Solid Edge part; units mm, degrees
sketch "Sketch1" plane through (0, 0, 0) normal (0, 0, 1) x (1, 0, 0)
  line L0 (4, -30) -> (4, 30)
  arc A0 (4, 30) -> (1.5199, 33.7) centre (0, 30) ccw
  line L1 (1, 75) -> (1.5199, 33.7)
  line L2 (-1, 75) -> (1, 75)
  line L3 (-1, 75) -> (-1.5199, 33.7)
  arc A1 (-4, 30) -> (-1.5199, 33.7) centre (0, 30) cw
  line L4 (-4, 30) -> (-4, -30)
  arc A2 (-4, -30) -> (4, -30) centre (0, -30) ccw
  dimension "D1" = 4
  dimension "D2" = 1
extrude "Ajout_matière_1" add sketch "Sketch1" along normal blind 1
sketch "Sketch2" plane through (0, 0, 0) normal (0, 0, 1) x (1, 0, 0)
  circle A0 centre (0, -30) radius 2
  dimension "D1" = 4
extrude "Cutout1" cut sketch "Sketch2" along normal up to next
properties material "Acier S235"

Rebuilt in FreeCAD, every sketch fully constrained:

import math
import FreeCAD as App
import Part
import Sketcher

doc = App.newDocument("Part")
params = doc.addObject("Spreadsheet::Sheet", "Params")
for row, (alias, value) in enumerate([
    ("sketch1_radius", "4 mm"),
    ("sketch1_height", "60 mm"),
    ("pad1_length", "1 mm"),
    ("sketch2_diameter", "4 mm"),
], start=1):
    params.set(f"A{row}", alias)
    params.set(f"B{row}", "=" + value)
    params.setAlias(f"B{row}", alias)

body = doc.addObject("PartDesign::Body", "Body")

# Sketch on XY plane
sketch1 = body.newObject("Sketcher::SketchObject", "Sketch")
sketch1.AttachmentSupport = (doc.getObject("XY_Plane"), [""])
sketch1.MapMode = "FlatFace"
sketch1.addGeometry([
    Part.ArcOfCircle(Part.Circle(App.Vector(0, -30, 0), App.Vector(0, 0, 1), 4), math.radians(180), math.radians(360)),  # 0
    Part.LineSegment(App.Vector(4, -30, 0), App.Vector(4, 30, 0)),  # 1
    Part.ArcOfCircle(Part.Circle(App.Vector(0, 30, 0), App.Vector(0, 0, 1), 4), math.radians(0), math.radians(68)),  # 2
    Part.LineSegment(App.Vector(1.5, 33.7, 0), App.Vector(1, 75, 0)),  # 3
    Part.LineSegment(App.Vector(1, 75, 0), App.Vector(-1, 75, 0)),  # 4
    Part.LineSegment(App.Vector(-1, 75, 0), App.Vector(-1.5, 33.7, 0)),  # 5
    Part.ArcOfCircle(Part.Circle(App.Vector(0, 30, 0), App.Vector(0, 0, 1), 4), math.radians(112), math.radians(180)),  # 6
    Part.LineSegment(App.Vector(-4, 30, 0), App.Vector(-4, -30, 0)),  # 7
], False)
sketch1.addConstraint([
    Sketcher.Constraint("Tangent", 0, 2, 1, 1),
    Sketcher.Constraint("Tangent", 1, 2, 2, 1),
    Sketcher.Constraint("Coincident", 2, 2, 3, 1),
    Sketcher.Constraint("Coincident", 3, 2, 4, 1),
    Sketcher.Constraint("Coincident", 4, 2, 5, 1),
    Sketcher.Constraint("Coincident", 5, 2, 6, 1),
    Sketcher.Constraint("Tangent", 6, 2, 7, 1),
    Sketcher.Constraint("Tangent", 7, 2, 0, 1),
    Sketcher.Constraint("Vertical", 1),
    Sketcher.Constraint("Horizontal", 4),
    Sketcher.Constraint("Vertical", 7),
    Sketcher.Constraint("Coincident", 6, 3, 2, 3),
    Sketcher.Constraint("Equal", 0, 2),
    Sketcher.Constraint("Symmetric", 0, 3, 2, 3, -1, 1),
    Sketcher.Constraint("Horizontal", 2, 2, 5, 2),
    Sketcher.Constraint("Equal", 3, 5),
    Sketcher.Constraint("Radius", 0, 4.0),
    Sketcher.Constraint("DistanceX", -1, 1, 3, 2, 1.0),
    Sketcher.Constraint("DistanceY", 1, 1, 1, 2, 60.0),
    Sketcher.Constraint("DistanceY", -1, 1, 3, 2, 75.0),
    Sketcher.Constraint("DistanceY", -1, 1, 2, 2, 33.7),
])
sketch1.setExpression("Constraints[16]", "Params.sketch1_radius")
sketch1.setExpression("Constraints[18]", "Params.sketch1_height")
pad1 = body.newObject("PartDesign::Pad", "Pad")
pad1.Profile = sketch1
pad1.setExpression("Length", "Params.pad1_length")

# Sketch on XY plane
sketch2 = body.newObject("Sketcher::SketchObject", "Sketch001")
sketch2.AttachmentSupport = (doc.getObject("XY_Plane"), [""])
sketch2.MapMode = "FlatFace"
sketch2.addGeometry(Part.Circle(App.Vector(0, -30, 0), App.Vector(0, 0, 1), 2), False)
sketch2.addConstraint([
    Sketcher.Constraint("PointOnObject", 0, 3, -2),
    Sketcher.Constraint("Diameter", 0, 4.0),
    Sketcher.Constraint("DistanceY", 0, 3, -1, 1, 30.0),
])
sketch2.setExpression("Constraints[1]", "Params.sketch2_diameter")
pocket1 = body.newObject("PartDesign::Pocket", "Pocket")
pocket1.Profile = sketch2
pocket1.Type = "UpToFirst"
pocket1.Reversed = True

doc.recompute()
